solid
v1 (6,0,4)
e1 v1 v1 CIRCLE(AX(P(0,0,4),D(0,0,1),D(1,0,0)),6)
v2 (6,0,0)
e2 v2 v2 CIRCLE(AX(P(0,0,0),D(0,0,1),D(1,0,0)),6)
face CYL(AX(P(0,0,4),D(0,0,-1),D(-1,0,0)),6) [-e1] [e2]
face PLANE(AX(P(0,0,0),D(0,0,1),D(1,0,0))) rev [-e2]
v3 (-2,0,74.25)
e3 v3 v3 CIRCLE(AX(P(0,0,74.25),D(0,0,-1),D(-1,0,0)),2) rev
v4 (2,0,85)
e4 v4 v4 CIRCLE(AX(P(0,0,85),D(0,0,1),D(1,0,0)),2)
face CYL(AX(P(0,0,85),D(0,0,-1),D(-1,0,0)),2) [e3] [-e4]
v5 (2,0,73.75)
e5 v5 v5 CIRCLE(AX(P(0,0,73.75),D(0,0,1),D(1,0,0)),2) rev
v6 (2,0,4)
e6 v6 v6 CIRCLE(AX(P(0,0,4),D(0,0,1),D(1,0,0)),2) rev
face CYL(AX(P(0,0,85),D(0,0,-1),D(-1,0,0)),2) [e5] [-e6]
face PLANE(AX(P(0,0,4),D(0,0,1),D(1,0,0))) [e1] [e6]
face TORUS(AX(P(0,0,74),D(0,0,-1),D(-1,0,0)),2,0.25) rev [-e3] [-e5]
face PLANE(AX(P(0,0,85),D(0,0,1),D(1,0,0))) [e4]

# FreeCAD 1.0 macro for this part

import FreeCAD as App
import Part
import Sketcher

V = App.Vector

doc = App.newDocument("Part")
body = doc.addObject("PartDesign::Body", "Body")

# Sketch on XY plane
sketch1 = body.newObject("Sketcher::SketchObject", "Sketch")
sketch1.AttachmentSupport = (doc.getObject("XY_Plane"), [""])
sketch1.MapMode = "FlatFace"
sketch1.addGeometry(Part.Circle(V(0, 0, 0), V(0, 0, 1), 6), False)
sketch1.addConstraint(Sketcher.Constraint("Coincident", 0, 3, -1, 1))
sketch1.addConstraint(Sketcher.Constraint("Diameter", 0, 12.0))
pad1 = body.newObject("PartDesign::Pad", "Pad")
pad1.Profile = sketch1
pad1.Length = 4

# Sketch on XY plane
sketch2 = body.newObject("Sketcher::SketchObject", "Sketch001")
sketch2.AttachmentSupport = (doc.getObject("XY_Plane"), [""])
sketch2.MapMode = "FlatFace"
sketch2.addGeometry(Part.Circle(V(0, 0, 0), V(0, 0, 1), 2), False)
sketch2.addConstraint(Sketcher.Constraint("Coincident", 0, 3, -1, 1))
sketch2.addConstraint(Sketcher.Constraint("Diameter", 0, 4.0))
pad2 = body.newObject("PartDesign::Pad", "Pad001")
pad2.Profile = sketch2
pad2.Length = 85

# Sketch on YZ plane
sketch3 = body.newObject("Sketcher::SketchObject", "Sketch002")
sketch3.AttachmentSupport = (doc.getObject("YZ_Plane"), [""])
sketch3.MapMode = "FlatFace"
sketch3.addGeometry(Part.Circle(V(2, 74, 0), V(0, 0, 1), 0.25), False)
sketch3.addConstraint(Sketcher.Constraint("Diameter", 0, 0.5))
sketch3.addConstraint(Sketcher.Constraint("DistanceX", -1, 1, 0, 3, 2.0))
sketch3.addConstraint(Sketcher.Constraint("DistanceY", -1, 1, 0, 3, 74.0))
groove = body.newObject("PartDesign::Groove", "Groove")
groove.Profile = sketch3
groove.ReferenceAxis = (sketch3, ["V_Axis"])
groove.Angle = 360

doc.recompute()
